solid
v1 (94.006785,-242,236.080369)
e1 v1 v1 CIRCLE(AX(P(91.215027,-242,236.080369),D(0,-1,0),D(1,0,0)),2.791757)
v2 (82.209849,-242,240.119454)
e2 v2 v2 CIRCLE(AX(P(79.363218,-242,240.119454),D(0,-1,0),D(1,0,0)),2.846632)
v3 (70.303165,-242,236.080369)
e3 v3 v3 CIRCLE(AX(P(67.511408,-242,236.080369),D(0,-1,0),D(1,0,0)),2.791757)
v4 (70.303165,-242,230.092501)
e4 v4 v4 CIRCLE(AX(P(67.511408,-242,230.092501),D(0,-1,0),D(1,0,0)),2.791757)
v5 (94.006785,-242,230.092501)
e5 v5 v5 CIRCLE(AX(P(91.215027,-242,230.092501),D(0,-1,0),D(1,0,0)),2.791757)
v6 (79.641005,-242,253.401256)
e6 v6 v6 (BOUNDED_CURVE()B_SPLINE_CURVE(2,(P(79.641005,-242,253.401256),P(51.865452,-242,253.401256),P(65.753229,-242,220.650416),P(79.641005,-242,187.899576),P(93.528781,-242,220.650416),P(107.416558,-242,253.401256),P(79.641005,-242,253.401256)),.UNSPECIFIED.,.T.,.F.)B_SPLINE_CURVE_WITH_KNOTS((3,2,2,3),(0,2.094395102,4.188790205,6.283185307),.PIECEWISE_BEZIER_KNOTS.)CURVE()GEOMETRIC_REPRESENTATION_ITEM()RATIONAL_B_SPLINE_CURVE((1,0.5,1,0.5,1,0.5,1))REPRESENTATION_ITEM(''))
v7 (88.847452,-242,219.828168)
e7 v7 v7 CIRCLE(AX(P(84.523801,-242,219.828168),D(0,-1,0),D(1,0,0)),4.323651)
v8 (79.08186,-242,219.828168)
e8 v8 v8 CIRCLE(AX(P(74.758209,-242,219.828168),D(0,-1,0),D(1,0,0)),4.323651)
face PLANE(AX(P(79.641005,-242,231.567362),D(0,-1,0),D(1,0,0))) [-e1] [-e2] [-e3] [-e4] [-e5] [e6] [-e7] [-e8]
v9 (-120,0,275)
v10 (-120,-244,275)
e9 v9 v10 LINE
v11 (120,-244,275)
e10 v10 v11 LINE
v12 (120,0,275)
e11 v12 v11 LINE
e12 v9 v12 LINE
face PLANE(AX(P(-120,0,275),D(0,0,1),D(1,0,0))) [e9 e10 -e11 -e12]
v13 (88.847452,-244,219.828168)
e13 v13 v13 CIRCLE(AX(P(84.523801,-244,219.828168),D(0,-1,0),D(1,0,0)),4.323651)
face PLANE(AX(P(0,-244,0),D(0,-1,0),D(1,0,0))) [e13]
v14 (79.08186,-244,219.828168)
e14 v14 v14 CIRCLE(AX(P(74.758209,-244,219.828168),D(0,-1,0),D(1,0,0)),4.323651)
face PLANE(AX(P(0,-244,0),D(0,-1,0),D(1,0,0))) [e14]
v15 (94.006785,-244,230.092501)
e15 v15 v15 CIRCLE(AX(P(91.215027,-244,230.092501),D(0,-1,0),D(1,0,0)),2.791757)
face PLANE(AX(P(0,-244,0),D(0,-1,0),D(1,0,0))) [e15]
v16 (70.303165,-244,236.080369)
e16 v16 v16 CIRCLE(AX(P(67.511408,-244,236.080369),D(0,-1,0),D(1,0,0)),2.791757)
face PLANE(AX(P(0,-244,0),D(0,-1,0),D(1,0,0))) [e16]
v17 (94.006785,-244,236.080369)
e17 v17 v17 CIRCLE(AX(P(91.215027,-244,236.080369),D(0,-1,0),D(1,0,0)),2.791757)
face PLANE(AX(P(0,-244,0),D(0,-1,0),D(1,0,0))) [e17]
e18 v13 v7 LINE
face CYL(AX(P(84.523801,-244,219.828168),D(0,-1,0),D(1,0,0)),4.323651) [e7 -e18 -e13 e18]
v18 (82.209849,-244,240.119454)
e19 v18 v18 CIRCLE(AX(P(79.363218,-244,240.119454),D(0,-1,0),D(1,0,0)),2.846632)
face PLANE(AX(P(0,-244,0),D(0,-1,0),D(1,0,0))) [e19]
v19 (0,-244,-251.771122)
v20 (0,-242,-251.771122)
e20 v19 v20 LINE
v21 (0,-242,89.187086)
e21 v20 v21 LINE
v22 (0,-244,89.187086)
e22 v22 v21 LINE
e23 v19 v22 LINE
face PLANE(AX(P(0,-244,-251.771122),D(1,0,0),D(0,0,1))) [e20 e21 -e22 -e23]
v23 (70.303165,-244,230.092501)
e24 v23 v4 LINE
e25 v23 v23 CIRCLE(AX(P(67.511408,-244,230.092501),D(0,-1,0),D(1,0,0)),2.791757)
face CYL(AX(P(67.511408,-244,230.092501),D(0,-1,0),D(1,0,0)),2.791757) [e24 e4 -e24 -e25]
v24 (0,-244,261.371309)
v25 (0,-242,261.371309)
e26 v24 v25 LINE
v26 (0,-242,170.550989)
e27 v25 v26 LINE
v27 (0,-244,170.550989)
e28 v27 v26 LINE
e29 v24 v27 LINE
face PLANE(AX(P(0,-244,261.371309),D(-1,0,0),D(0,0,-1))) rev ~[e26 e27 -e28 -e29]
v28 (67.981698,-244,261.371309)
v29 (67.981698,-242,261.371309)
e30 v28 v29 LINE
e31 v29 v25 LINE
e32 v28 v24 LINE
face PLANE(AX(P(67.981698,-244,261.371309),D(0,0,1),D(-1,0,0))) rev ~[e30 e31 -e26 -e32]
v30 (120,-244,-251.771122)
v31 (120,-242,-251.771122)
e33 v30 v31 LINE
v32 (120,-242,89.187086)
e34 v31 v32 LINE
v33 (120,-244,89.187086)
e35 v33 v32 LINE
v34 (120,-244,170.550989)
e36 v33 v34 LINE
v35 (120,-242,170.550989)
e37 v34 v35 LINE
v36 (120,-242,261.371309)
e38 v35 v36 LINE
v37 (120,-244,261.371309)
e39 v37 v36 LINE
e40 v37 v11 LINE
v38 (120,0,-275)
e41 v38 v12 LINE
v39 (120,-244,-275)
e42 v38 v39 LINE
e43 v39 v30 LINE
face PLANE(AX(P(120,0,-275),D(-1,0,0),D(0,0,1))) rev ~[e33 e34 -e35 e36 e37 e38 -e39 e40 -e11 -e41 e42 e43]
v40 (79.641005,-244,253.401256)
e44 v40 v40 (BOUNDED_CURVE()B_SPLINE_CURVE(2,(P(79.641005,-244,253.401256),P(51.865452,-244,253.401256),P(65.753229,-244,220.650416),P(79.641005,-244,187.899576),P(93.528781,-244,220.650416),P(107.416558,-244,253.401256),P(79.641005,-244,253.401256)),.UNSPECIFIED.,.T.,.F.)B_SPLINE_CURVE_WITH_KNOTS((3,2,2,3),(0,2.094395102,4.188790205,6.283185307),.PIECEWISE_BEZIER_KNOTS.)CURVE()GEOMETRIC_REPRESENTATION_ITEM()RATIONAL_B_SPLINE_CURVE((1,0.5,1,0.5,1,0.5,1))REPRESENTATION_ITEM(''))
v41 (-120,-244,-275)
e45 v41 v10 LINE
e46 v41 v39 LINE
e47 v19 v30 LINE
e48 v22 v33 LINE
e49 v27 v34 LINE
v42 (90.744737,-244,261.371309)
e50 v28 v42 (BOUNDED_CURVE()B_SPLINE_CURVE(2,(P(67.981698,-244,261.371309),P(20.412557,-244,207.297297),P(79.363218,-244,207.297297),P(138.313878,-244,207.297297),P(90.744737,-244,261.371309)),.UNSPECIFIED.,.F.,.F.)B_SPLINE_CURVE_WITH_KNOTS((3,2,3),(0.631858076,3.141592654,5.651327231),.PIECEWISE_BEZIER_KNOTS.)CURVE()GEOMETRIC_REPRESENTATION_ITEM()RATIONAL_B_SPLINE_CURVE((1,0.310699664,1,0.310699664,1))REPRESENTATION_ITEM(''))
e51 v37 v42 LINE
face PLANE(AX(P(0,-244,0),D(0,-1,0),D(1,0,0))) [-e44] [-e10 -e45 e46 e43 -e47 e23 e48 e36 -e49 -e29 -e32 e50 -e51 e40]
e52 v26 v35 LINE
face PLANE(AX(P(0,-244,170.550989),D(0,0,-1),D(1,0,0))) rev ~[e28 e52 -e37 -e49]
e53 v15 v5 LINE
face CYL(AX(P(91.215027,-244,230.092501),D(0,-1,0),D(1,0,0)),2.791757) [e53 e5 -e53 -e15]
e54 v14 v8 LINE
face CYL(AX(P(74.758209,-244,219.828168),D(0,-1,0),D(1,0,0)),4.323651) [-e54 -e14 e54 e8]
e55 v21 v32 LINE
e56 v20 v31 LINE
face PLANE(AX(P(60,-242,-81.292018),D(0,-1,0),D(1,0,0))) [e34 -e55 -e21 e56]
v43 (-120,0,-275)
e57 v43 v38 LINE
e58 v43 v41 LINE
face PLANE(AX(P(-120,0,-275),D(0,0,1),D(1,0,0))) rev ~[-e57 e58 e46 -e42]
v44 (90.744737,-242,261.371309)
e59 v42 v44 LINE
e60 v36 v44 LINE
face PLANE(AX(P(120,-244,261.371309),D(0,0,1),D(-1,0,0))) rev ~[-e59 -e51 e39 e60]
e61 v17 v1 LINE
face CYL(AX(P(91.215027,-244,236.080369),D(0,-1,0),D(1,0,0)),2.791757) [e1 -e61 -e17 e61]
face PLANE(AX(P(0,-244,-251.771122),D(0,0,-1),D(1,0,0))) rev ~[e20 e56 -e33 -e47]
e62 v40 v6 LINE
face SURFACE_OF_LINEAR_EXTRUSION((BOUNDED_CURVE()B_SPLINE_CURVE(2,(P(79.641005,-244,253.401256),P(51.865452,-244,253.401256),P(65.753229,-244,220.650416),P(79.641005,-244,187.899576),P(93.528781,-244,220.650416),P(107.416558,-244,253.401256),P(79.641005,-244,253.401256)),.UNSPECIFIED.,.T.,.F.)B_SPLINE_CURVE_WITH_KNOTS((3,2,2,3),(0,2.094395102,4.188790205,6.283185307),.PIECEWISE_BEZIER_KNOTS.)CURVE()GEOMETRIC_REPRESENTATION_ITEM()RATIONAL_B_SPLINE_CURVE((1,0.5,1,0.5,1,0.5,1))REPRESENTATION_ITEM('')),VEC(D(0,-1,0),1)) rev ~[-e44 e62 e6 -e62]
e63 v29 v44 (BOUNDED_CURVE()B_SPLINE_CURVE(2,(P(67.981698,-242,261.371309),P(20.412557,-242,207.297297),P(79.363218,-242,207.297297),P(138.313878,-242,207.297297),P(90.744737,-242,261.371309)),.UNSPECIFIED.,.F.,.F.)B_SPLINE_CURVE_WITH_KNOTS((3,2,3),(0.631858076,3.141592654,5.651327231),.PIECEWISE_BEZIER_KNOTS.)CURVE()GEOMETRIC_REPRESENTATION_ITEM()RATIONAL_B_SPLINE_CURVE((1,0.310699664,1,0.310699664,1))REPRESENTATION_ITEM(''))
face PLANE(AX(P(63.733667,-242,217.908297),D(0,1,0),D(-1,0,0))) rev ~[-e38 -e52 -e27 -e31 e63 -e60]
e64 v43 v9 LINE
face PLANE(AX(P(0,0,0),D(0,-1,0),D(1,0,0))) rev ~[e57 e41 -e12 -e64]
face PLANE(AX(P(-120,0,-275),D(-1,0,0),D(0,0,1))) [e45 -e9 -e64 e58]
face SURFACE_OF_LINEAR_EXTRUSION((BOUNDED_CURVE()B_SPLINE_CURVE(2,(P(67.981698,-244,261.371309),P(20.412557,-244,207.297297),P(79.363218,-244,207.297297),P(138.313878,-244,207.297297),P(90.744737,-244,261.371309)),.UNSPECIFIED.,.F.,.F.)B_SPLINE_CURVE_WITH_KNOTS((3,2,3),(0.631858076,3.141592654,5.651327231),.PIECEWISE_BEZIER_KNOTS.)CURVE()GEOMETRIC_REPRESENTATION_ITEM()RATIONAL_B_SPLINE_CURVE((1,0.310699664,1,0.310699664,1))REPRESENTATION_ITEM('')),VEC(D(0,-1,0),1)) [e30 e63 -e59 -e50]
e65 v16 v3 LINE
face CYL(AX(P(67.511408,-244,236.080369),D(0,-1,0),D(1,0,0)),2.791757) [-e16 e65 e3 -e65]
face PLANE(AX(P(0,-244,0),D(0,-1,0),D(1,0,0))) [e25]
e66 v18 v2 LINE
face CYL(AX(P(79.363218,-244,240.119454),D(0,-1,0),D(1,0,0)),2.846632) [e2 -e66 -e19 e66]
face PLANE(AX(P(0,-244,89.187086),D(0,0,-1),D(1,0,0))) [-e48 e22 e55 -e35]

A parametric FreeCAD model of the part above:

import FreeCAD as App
import Part
import Sketcher

V = App.Vector


def add_polygon(sketch, points):
    """Adds a closed chain of lines whose ends are joined by coincident constraints."""
    first, n = sketch.GeometryCount, len(points)
    for a, b in zip(points, points[1:] + points[:1]):
        sketch.addGeometry(Part.LineSegment(App.Vector(*a, 0), App.Vector(*b, 0)), False)
    for i in range(n):
        sketch.addConstraint(Sketcher.Constraint("Coincident", first + i, 2, first + (i + 1) % n, 1))

doc = App.newDocument("Part")
body = doc.addObject("PartDesign::Body", "Body")

# Sketch on XZ plane
sketch1 = doc.addObject("Sketcher::SketchObject", "Sketch")
body.addObject(sketch1)
sketch1.AttachmentSupport = (doc.XZ_Plane, [""])
sketch1.MapMode = "FlatFace"
add_polygon(sketch1, [(-120, 275), (-120, -275), (120, -275), (120, 275)])  # lines 0-3
sketch1.addConstraint([
    Sketcher.Constraint("Vertical", 0),
    Sketcher.Constraint("Horizontal", 1),
    Sketcher.Constraint("Vertical", 2),
    Sketcher.Constraint("Horizontal", 3),
    Sketcher.Constraint("Symmetric", 0, 2, 2, 2, -1, 1),
    Sketcher.Constraint("DistanceX", 1, 1, 1, 2, 240.0),
    Sketcher.Constraint("DistanceY", 0, 2, 0, 1, 550.0),
])
pad1 = doc.addObject("PartDesign::Pad", "Pad")
body.addObject(pad1)
pad1.Profile = sketch1
pad1.Length = 244

# Sketch on XZ plane
sketch2 = doc.addObject("Sketcher::SketchObject", "Sketch001")
body.addObject(sketch2)
sketch2.AttachmentSupport = (doc.XZ_Plane, [""])
sketch2.MapMode = "FlatFace"
sketch2.AttachmentOffset = App.Placement(V(0, 0, 244), App.Rotation())
sketch2.addGeometry(Part.BSplineCurve([V(79.641005, 253.401256, 0), V(51.865452, 253.401256, 0), V(65.753229, 220.650416, 0), V(79.641005, 187.899576, 0), V(93.528781, 220.650416, 0), V(107.416558, 253.401256, 0), V(79.641005, 253.401256, 0)], [3, 2, 2, 3], [0, 2.094395102, 4.188790205, 6.283185307], False, 2, [1, 0.5, 1, 0.5, 1, 0.5, 1], False), False)  # 0
sketch2.addGeometry(Part.Circle(V(74.758209, 219.828168, 0), V(0, 0, 1), 4.323651), False)  # 1
sketch2.addGeometry(Part.Circle(V(84.523801, 219.828168, 0), V(0, 0, 1), 4.323651), False)  # 2
sketch2.addGeometry(Part.Circle(V(67.511408, 230.092501, 0), V(0, 0, 1), 2.791757), False)  # 3
sketch2.addGeometry(Part.Circle(V(67.511408, 236.080369, 0), V(0, 0, 1), 2.791757), False)  # 4
sketch2.addGeometry(Part.Circle(V(79.363218, 240.119454, 0), V(0, 0, 1), 2.846632), False)  # 5
sketch2.addGeometry(Part.Circle(V(91.215027, 230.092501, 0), V(0, 0, 1), 2.791757), False)  # 6
sketch2.addGeometry(Part.Circle(V(91.215027, 236.080369, 0), V(0, 0, 1), 2.791757), False)  # 7
sketch2.addGeometry(Part.BSplineCurve([V(67.981698, 261.371309, 0), V(20.412557, 207.297297, 0), V(79.363218, 207.297297, 0), V(138.313878, 207.297297, 0), V(90.744737, 261.371309, 0)], [3, 2, 3], [0.631858076, 3.141592654, 5.651327231], False, 2, [1, 0.310699664, 1, 0.310699664, 1], False), False)  # 8
sketch2.addGeometry(Part.LineSegment(V(67.981698, 261.371309, 0), V(0, 261.371309, 0)), False)  # 9
sketch2.addGeometry(Part.LineSegment(V(0, 261.371309, 0), V(0, 170.550989, 0)), False)  # 10
sketch2.addGeometry(Part.LineSegment(V(0, 170.550989, 0), V(120, 170.550989, 0)), False)  # 11
sketch2.addGeometry(Part.LineSegment(V(120, 170.550989, 0), V(120, 261.371309, 0)), False)  # 12
sketch2.addGeometry(Part.LineSegment(V(120, 261.371309, 0), V(90.744737, 261.371309, 0)), False)  # 13
add_polygon(sketch2, [(0, 89.187086), (0, -251.771122), (120, -251.771122), (120, 89.187086)])  # lines 14-17
sketch2.addConstraint([
    Sketcher.Constraint("Block", 0),
    Sketcher.Constraint("Block", 8),
    Sketcher.Constraint("Coincident", 8, 1, 9, 1),
    Sketcher.Constraint("Coincident", 9, 2, 10, 1),
    Sketcher.Constraint("Coincident", 10, 2, 11, 1),
    Sketcher.Constraint("Coincident", 11, 2, 12, 1),
    Sketcher.Constraint("Coincident", 12, 2, 13, 1),
    Sketcher.Constraint("Coincident", 13, 2, 8, 2),
    Sketcher.Constraint("Horizontal", 9),
    Sketcher.Constraint("Vertical", 10),
    Sketcher.Constraint("Horizontal", 11),
    Sketcher.Constraint("Vertical", 12),
    Sketcher.Constraint("Horizontal", 13),
    Sketcher.Constraint("Vertical", 14),
    Sketcher.Constraint("Horizontal", 15),
    Sketcher.Constraint("Vertical", 16),
    Sketcher.Constraint("Horizontal", 17),
    Sketcher.Constraint("Equal", 1, 2),
    Sketcher.Constraint("Equal", 3, 4),
    Sketcher.Constraint("Equal", 4, 6),
    Sketcher.Constraint("Equal", 6, 7),
    Sketcher.Constraint("PointOnObject", 9, 2, -2),
    Sketcher.Constraint("PointOnObject", 14, 2, -2),
    Sketcher.Constraint("Horizontal", 1, 3, 2, 3),
    Sketcher.Constraint("Horizontal", 3, 3, 6, 3),
    Sketcher.Constraint("Horizontal", 4, 3, 7, 3),
    Sketcher.Constraint("Vertical", 3, 3, 4, 3),
    Sketcher.Constraint("Vertical", 6, 3, 7, 3),
    Sketcher.Constraint("Vertical", 12, 2, 15, 2),
    Sketcher.Constraint("DistanceX", 11, 1, 11, 2, 120.0),
    Sketcher.Constraint("Diameter", 1, 8.647302),
    Sketcher.Constraint("Diameter", 3, 5.583514),
    Sketcher.Constraint("Diameter", 5, 5.693263),
    Sketcher.Constraint("DistanceY", 10, 2, 10, 1, 90.82032),
    Sketcher.Constraint("DistanceX", -1, 1, 2, 3, 84.523801),
    Sketcher.Constraint("DistanceY", -1, 1, 3, 3, 230.092501),
    Sketcher.Constraint("DistanceX", 3, 3, 1, 3, 7.246802),
    Sketcher.Constraint("DistanceY", 1, 3, 4, 3, 16.252201),
    Sketcher.Constraint("DistanceY", 14, 2, 14, 1, 340.958208),
    Sketcher.Constraint("DistanceX", -1, 1, 1, 3, 74.758209),
    Sketcher.Constraint("DistanceY", -1, 1, 4, 3, 236.080369),
    Sketcher.Constraint("DistanceX", 4, 3, 5, 3, 11.85181),
    Sketcher.Constraint("DistanceX", 5, 3, 6, 3, 11.85181),
    Sketcher.Constraint("DistanceY", 14, 2, 10, 2, 422.322111),
    Sketcher.Constraint("DistanceY", -1, 1, 5, 3, 240.119454),
])
pocket1 = doc.addObject("PartDesign::Pocket", "Pocket")
body.addObject(pocket1)
pocket1.Profile = sketch2
pocket1.Length = 2

doc.recompute()
